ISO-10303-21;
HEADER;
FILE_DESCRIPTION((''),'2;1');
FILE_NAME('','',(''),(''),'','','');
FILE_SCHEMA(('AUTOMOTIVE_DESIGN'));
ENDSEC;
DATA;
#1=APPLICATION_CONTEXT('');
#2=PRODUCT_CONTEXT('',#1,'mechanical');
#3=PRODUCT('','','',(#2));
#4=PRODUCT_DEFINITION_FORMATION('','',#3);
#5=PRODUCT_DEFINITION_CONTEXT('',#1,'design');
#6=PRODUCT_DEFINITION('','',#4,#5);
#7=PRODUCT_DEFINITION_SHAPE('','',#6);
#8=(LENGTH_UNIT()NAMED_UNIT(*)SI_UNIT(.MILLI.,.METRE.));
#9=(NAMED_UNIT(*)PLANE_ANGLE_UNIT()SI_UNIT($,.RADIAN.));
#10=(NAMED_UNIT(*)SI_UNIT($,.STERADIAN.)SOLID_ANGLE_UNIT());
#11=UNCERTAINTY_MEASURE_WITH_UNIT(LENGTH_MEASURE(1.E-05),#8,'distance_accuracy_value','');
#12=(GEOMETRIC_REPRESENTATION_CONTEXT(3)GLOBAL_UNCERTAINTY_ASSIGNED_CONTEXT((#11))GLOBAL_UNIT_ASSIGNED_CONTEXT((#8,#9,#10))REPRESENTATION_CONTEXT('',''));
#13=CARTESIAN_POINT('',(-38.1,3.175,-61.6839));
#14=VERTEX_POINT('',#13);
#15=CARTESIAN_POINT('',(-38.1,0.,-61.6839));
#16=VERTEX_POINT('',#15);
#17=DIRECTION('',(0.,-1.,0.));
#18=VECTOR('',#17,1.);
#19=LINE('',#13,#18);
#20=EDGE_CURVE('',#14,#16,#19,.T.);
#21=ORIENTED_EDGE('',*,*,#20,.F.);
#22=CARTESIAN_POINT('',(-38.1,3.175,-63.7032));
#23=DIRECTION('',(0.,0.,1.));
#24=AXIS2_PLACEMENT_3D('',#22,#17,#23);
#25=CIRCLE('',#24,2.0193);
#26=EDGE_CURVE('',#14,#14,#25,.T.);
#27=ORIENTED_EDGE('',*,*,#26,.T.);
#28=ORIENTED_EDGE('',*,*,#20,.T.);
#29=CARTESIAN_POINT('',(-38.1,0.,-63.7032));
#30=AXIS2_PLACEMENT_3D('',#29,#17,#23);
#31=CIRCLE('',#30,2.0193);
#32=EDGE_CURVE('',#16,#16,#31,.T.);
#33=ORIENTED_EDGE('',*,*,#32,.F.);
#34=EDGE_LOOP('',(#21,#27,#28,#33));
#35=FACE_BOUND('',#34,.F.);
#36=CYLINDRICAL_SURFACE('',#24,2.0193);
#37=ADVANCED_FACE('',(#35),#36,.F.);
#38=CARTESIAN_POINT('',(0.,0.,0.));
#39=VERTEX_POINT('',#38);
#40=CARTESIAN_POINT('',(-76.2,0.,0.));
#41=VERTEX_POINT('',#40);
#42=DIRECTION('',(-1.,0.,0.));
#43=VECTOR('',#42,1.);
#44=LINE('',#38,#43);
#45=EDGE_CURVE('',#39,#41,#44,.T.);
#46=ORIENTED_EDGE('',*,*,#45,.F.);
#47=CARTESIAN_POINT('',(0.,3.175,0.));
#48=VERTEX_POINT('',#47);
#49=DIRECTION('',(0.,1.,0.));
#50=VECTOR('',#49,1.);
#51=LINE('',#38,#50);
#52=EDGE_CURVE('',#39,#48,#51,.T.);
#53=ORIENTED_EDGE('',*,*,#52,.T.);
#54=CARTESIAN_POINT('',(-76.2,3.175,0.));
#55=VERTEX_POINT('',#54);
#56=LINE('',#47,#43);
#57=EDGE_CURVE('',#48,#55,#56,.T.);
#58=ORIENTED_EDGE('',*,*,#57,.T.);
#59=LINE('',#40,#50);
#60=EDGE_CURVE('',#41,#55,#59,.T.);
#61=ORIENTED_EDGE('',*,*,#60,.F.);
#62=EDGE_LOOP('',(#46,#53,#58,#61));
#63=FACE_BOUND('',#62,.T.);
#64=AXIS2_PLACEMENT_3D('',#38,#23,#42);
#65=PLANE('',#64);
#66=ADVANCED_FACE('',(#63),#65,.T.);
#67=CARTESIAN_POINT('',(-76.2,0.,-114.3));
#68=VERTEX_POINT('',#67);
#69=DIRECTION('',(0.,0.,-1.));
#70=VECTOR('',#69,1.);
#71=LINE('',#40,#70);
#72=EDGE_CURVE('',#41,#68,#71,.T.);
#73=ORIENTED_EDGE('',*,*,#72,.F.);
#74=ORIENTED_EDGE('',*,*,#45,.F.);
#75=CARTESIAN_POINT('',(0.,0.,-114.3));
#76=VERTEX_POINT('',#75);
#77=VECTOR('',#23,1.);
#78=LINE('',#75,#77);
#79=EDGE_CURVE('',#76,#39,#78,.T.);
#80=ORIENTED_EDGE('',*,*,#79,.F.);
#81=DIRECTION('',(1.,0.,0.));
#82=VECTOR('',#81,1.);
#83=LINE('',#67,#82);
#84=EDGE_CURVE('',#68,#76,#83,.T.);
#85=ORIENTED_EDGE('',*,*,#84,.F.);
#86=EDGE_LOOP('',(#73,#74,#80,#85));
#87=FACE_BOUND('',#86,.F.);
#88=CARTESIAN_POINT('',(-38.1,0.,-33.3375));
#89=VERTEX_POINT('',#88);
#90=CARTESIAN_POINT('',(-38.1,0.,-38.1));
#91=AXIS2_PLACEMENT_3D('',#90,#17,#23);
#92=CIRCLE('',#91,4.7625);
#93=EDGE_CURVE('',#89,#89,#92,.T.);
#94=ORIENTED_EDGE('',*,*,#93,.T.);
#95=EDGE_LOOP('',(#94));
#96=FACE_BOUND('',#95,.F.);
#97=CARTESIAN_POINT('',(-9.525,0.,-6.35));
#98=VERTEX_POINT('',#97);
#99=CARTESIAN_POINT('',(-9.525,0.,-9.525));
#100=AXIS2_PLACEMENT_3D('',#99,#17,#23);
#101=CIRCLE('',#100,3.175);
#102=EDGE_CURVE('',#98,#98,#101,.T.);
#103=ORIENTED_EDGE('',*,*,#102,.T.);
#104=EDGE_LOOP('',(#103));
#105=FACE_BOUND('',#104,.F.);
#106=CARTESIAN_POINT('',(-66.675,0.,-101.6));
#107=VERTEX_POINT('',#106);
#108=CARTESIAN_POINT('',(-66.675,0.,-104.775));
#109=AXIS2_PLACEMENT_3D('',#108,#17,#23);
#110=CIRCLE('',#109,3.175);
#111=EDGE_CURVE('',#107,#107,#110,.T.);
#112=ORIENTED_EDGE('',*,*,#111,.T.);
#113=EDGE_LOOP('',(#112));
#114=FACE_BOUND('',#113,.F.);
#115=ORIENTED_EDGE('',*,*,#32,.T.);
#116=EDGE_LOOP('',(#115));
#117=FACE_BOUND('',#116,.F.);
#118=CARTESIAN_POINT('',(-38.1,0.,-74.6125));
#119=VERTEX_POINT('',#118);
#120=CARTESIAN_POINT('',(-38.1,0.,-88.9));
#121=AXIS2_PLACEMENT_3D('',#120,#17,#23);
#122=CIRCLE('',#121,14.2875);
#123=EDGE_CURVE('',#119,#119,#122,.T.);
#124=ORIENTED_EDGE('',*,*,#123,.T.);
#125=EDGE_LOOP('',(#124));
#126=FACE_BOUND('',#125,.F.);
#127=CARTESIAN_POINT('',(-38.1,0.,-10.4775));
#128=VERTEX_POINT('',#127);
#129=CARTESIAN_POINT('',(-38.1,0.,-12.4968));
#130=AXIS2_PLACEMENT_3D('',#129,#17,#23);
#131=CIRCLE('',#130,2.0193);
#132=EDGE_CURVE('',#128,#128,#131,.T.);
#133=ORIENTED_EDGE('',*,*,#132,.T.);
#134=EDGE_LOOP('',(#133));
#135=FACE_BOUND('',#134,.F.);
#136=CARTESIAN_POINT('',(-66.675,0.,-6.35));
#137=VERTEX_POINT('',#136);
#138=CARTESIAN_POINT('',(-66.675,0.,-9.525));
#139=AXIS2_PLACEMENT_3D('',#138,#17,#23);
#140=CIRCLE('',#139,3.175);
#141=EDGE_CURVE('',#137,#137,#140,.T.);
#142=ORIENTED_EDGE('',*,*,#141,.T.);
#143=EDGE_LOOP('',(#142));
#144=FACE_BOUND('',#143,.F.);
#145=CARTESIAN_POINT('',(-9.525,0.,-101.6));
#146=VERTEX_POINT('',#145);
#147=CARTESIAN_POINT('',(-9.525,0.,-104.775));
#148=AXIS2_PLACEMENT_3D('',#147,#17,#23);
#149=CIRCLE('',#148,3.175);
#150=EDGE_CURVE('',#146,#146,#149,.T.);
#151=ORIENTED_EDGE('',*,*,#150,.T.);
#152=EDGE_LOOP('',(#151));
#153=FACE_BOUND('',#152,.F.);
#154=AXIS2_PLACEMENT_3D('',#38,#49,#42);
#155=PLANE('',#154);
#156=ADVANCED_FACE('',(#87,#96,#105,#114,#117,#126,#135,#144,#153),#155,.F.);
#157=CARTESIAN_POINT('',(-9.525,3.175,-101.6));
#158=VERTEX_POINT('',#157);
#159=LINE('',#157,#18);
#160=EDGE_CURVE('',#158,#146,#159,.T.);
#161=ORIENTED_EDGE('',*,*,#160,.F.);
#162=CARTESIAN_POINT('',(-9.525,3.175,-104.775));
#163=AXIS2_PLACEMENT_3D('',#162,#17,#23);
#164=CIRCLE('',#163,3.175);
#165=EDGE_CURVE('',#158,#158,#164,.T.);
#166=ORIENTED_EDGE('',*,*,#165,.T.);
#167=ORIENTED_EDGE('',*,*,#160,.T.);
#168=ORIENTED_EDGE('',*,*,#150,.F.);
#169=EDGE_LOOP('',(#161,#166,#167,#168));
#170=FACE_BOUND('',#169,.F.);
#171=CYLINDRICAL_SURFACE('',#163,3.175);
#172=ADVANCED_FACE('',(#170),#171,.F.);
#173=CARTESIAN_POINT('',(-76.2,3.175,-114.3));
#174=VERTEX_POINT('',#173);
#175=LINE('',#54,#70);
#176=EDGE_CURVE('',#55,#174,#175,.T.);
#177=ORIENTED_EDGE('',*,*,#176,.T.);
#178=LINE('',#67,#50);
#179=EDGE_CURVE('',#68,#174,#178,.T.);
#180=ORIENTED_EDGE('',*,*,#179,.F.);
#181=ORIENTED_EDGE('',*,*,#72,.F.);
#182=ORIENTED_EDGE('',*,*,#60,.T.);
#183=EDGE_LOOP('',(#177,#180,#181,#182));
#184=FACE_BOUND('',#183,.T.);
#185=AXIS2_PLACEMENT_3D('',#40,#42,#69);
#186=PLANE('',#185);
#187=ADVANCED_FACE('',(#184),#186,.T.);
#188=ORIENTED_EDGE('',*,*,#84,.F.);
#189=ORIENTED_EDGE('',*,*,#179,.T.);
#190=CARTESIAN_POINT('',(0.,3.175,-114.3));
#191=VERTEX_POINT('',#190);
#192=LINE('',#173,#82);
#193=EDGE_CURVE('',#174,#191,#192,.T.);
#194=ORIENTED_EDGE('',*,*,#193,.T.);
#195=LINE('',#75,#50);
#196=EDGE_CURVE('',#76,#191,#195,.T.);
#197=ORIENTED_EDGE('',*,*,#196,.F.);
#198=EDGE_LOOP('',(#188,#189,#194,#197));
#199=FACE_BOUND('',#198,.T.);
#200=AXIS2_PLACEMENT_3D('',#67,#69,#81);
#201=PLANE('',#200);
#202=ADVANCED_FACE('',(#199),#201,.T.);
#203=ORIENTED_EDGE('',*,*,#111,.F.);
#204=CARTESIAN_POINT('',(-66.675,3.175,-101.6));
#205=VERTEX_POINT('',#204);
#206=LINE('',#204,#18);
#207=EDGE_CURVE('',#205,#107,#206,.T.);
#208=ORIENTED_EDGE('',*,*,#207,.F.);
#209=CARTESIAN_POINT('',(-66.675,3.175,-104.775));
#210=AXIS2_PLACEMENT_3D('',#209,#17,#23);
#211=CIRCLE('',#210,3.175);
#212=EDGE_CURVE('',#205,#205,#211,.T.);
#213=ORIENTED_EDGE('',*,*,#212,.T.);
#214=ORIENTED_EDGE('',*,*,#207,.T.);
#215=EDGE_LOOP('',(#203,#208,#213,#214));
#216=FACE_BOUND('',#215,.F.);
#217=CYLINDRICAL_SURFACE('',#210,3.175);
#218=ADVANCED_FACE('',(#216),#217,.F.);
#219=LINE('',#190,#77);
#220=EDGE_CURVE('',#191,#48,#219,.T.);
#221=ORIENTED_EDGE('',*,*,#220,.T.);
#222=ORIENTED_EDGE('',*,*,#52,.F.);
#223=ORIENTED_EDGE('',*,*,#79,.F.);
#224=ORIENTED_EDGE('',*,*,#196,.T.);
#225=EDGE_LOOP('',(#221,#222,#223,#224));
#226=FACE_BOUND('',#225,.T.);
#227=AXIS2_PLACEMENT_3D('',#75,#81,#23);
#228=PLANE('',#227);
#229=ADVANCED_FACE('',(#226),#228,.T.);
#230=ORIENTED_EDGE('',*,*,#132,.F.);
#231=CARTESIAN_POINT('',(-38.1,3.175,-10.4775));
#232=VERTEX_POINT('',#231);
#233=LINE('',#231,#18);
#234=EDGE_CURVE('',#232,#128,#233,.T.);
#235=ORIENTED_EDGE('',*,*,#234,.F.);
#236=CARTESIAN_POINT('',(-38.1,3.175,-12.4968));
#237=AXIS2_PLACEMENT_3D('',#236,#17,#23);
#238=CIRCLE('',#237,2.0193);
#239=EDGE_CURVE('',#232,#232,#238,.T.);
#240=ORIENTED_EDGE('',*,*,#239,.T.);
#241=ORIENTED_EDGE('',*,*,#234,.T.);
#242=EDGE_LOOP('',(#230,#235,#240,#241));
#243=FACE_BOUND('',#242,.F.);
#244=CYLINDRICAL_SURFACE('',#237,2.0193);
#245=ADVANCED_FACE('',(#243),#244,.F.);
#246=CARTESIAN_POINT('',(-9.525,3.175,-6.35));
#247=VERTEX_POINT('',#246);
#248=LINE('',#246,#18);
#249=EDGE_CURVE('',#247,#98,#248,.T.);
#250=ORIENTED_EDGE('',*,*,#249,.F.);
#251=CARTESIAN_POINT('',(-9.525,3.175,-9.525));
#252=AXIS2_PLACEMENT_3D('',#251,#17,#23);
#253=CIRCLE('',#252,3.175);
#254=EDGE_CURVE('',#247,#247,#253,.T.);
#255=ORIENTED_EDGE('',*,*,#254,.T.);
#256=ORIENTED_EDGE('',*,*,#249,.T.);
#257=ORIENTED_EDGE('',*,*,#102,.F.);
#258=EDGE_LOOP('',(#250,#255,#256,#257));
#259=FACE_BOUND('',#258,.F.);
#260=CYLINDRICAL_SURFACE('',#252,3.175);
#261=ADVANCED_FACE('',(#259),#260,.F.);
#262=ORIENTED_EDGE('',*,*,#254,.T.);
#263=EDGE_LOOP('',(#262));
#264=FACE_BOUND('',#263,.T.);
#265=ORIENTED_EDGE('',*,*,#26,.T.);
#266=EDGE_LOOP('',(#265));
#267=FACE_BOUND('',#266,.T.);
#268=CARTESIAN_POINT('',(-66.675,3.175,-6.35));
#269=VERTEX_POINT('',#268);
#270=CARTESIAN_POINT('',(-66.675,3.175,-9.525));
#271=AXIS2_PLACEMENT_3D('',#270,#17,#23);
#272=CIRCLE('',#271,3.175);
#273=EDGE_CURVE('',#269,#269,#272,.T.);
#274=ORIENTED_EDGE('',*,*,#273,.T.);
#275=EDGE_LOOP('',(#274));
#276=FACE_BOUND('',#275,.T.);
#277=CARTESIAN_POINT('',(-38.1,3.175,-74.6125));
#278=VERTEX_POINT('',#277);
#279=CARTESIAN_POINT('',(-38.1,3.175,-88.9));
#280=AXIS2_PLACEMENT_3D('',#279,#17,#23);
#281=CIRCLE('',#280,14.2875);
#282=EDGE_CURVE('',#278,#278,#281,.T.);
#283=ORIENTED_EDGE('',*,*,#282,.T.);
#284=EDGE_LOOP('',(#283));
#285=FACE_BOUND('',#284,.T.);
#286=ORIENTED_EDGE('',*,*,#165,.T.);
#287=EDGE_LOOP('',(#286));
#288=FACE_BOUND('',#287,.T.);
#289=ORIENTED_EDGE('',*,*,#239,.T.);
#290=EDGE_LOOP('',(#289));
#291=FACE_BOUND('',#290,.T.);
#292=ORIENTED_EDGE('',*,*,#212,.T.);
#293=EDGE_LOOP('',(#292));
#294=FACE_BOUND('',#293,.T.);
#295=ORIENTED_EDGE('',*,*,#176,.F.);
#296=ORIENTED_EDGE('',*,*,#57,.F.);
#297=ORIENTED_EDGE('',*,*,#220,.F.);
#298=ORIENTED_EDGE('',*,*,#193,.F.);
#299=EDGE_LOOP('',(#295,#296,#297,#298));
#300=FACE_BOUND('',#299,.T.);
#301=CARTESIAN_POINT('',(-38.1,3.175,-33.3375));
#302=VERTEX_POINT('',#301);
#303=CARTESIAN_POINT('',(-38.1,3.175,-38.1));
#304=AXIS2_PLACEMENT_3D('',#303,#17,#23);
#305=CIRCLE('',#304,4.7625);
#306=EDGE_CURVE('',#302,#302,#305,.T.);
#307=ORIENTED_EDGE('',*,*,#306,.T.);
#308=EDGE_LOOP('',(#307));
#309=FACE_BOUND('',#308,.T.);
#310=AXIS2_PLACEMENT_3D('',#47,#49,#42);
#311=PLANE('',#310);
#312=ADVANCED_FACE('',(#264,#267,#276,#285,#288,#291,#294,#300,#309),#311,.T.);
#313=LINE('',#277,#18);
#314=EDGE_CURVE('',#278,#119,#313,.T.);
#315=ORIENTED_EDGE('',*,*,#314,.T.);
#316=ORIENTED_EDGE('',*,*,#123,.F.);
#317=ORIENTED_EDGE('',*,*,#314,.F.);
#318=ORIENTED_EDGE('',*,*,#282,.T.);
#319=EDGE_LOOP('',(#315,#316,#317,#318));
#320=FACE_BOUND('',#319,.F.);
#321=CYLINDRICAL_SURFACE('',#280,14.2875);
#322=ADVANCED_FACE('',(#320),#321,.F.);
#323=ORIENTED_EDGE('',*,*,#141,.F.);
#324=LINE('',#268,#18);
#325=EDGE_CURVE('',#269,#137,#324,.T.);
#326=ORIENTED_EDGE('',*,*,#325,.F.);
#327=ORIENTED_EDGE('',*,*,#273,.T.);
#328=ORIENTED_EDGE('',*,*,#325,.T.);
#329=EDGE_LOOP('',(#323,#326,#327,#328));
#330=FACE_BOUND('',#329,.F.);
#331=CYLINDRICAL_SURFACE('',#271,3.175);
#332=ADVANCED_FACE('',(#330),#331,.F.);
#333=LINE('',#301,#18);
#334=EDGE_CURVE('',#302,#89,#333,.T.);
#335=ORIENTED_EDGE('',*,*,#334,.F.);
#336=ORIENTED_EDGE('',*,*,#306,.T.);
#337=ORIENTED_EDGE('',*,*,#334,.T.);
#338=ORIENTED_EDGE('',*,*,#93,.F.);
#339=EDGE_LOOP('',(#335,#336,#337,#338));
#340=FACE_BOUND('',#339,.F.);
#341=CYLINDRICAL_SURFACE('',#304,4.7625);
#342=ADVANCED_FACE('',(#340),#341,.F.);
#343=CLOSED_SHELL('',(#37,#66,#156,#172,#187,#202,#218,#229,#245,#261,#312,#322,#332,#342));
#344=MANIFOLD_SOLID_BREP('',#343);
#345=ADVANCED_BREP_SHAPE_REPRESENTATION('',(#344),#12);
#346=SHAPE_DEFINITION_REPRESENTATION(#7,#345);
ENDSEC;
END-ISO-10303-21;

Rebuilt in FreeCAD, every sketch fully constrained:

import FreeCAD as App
import Part
import Sketcher

V = App.Vector
Q = App.Units.Quantity


def add_polygon(sketch, points):
    """Adds a closed chain of lines whose ends are joined by coincident constraints."""
    first, n = sketch.GeometryCount, len(points)
    for a, b in zip(points, points[1:] + points[:1]):
        sketch.addGeometry(Part.LineSegment(App.Vector(*a, 0), App.Vector(*b, 0)), False)
    for i in range(n):
        sketch.addConstraint(Sketcher.Constraint("Coincident", first + i, 2, first + (i + 1) % n, 1))

doc = App.newDocument("Part")
body = doc.addObject("PartDesign::Body", "Body")

# Sketch on XZ plane
sketch1 = body.newObject("Sketcher::SketchObject", "Sketch")
sketch1.AttachmentSupport = (doc.getObject("XZ_Plane"), [""])
sketch1.MapMode = "FlatFace"
add_polygon(sketch1, [(-76.2, 0), (0, 0), (0, -114.3), (-76.2, -114.3)])  # lines 0-3
sketch1.addConstraint([
    Sketcher.Constraint("Horizontal", 0),
    Sketcher.Constraint("Vertical", 1),
    Sketcher.Constraint("Horizontal", 2),
    Sketcher.Constraint("Vertical", 3),
    Sketcher.Constraint("Coincident", 0, 2, -1, 1),
    Sketcher.Constraint("DistanceX", 0, 1, 0, 2, Q("3 in")),
    Sketcher.Constraint("DistanceY", 1, 2, 1, 1, Q("4.5 in")),
])
pad1 = body.newObject("PartDesign::Pad", "Pad")
pad1.Profile = sketch1
pad1.Length = Q("0.125 in")
pad1.Reversed = True

# Sketch on XZ plane
sketch2 = body.newObject("Sketcher::SketchObject", "Sketch001")
sketch2.AttachmentSupport = (doc.getObject("XZ_Plane"), [""])
sketch2.MapMode = "FlatFace"
sketch2.AttachmentOffset = App.Placement(V(0, 0, -0.125 * 25.4), App.Rotation())
sketch2.addGeometry(Part.Circle(V(-9.525, -9.525, 0), V(0, 0, 1), 3.175), False)
sketch2.addConstraint([
    Sketcher.Constraint("Diameter", 0, Q("0.25 in")),
    Sketcher.Constraint("DistanceX", 0, 3, -1, 1, Q("0.375 in")),
    Sketcher.Constraint("DistanceY", 0, 3, -1, 1, Q("0.375 in")),
])
doc.recompute()
hole = body.newObject("PartDesign::Hole", "Hole")
hole.Profile = sketch2
hole.ThreadType = "None"
hole.Diameter = Q("0.25 in")
hole.DepthType = "Dimension"
hole.Depth = Q("1 in")
hole.DrillPoint = "Angled"
hole.DrillPointAngle = 118
hole.Reversed = True

# Sketch on XZ plane
sketch3 = body.newObject("Sketcher::SketchObject", "Sketch002")
sketch3.AttachmentSupport = (doc.getObject("XZ_Plane"), [""])
sketch3.MapMode = "FlatFace"
sketch3.AttachmentOffset = App.Placement(V(0, 0, -0.125 * 25.4), App.Rotation())
sketch3.addGeometry(Part.Circle(V(-9.525, -104.775, 0), V(0, 0, 1), 3.175), False)
sketch3.addConstraint([
    Sketcher.Constraint("Diameter", 0, Q("0.25 in")),
    Sketcher.Constraint("DistanceX", 0, 3, -1, 1, Q("0.375 in")),
    Sketcher.Constraint("DistanceY", 0, 3, -1, 1, Q("4.125 in")),
])
doc.recompute()
hole2 = body.newObject("PartDesign::Hole", "Hole001")
hole2.Profile = sketch3
hole2.ThreadType = "None"
hole2.Diameter = Q("0.25 in")
hole2.DepthType = "Dimension"
hole2.Depth = Q("1 in")
hole2.DrillPoint = "Angled"
hole2.DrillPointAngle = 118
hole2.Reversed = True

# Sketch on XZ plane
sketch4 = body.newObject("Sketcher::SketchObject", "Sketch003")
sketch4.AttachmentSupport = (doc.getObject("XZ_Plane"), [""])
sketch4.MapMode = "FlatFace"
sketch4.AttachmentOffset = App.Placement(V(0, 0, -0.125 * 25.4), App.Rotation())
sketch4.addGeometry(Part.Circle(V(-66.675, -104.775, 0), V(0, 0, 1), 3.175), False)
sketch4.addConstraint([
    Sketcher.Constraint("Diameter", 0, Q("0.25 in")),
    Sketcher.Constraint("DistanceX", 0, 3, -1, 1, Q("2.625 in")),
    Sketcher.Constraint("DistanceY", 0, 3, -1, 1, Q("4.125 in")),
])
doc.recompute()
hole3 = body.newObject("PartDesign::Hole", "Hole002")
hole3.Profile = sketch4
hole3.ThreadType = "None"
hole3.Diameter = Q("0.25 in")
hole3.DepthType = "Dimension"
hole3.Depth = Q("1 in")
hole3.DrillPoint = "Angled"
hole3.DrillPointAngle = 118
hole3.Reversed = True

# Sketch on XZ plane
sketch5 = body.newObject("Sketcher::SketchObject", "Sketch004")
sketch5.AttachmentSupport = (doc.getObject("XZ_Plane"), [""])
sketch5.MapMode = "FlatFace"
sketch5.AttachmentOffset = App.Placement(V(0, 0, -0.125 * 25.4), App.Rotation())
sketch5.addGeometry(Part.Circle(V(-66.675, -9.525, 0), V(0, 0, 1), 3.175), False)
sketch5.addConstraint([
    Sketcher.Constraint("Diameter", 0, Q("0.25 in")),
    Sketcher.Constraint("DistanceX", 0, 3, -1, 1, Q("2.625 in")),
    Sketcher.Constraint("DistanceY", 0, 3, -1, 1, Q("0.375 in")),
])
doc.recompute()
hole4 = body.newObject("PartDesign::Hole", "Hole003")
hole4.Profile = sketch5
hole4.ThreadType = "None"
hole4.Diameter = Q("0.25 in")
hole4.DepthType = "Dimension"
hole4.Depth = Q("1 in")
hole4.DrillPoint = "Angled"
hole4.DrillPointAngle = 118
hole4.Reversed = True

# Sketch on XZ plane
sketch6 = body.newObject("Sketcher::SketchObject", "Sketch005")
sketch6.AttachmentSupport = (doc.getObject("XZ_Plane"), [""])
sketch6.MapMode = "FlatFace"
sketch6.AttachmentOffset = App.Placement(V(0, 0, -0.125 * 25.4), App.Rotation())
sketch6.addGeometry(Part.Circle(V(-38.1, -88.9, 0), V(0, 0, 1), 14.2875), False)
sketch6.addConstraint([
    Sketcher.Constraint("Diameter", 0, Q("1.125 in")),
    Sketcher.Constraint("DistanceX", 0, 3, -1, 1, Q("1.5 in")),
    Sketcher.Constraint("DistanceY", 0, 3, -1, 1, Q("3.5 in")),
])
doc.recompute()
hole5 = body.newObject("PartDesign::Hole", "Hole004")
hole5.Profile = sketch6
hole5.ThreadType = "None"
hole5.Diameter = Q("1.125 in")
hole5.DepthType = "Dimension"
hole5.Depth = Q("1 in")
hole5.DrillPoint = "Angled"
hole5.DrillPointAngle = 118
hole5.Reversed = True

# Sketch on XZ plane
sketch7 = body.newObject("Sketcher::SketchObject", "Sketch006")
sketch7.AttachmentSupport = (doc.getObject("XZ_Plane"), [""])
sketch7.MapMode = "FlatFace"
sketch7.AttachmentOffset = App.Placement(V(0, 0, -0.125 * 25.4), App.Rotation())
sketch7.addGeometry(Part.Circle(V(-38.1, -38.1, 0), V(0, 0, 1), 4.7625), False)
sketch7.addConstraint([
    Sketcher.Constraint("Diameter", 0, Q("0.375 in")),
    Sketcher.Constraint("DistanceX", 0, 3, -1, 1, Q("1.5 in")),
    Sketcher.Constraint("DistanceY", 0, 3, -1, 1, Q("1.5 in")),
])
doc.recompute()
hole6 = body.newObject("PartDesign::Hole", "Hole005")
hole6.Profile = sketch7
hole6.ThreadType = "None"
hole6.Diameter = Q("0.375 in")
hole6.DepthType = "Dimension"
hole6.Depth = Q("1 in")
hole6.DrillPoint = "Angled"
hole6.DrillPointAngle = 118
hole6.Reversed = True

# Sketch on XZ plane
sketch8 = body.newObject("Sketcher::SketchObject", "Sketch007")
sketch8.AttachmentSupport = (doc.getObject("XZ_Plane"), [""])
sketch8.MapMode = "FlatFace"
sketch8.AttachmentOffset = App.Placement(V(0, 0, -0.125 * 25.4), App.Rotation())
sketch8.addGeometry(Part.Circle(V(-38.1, -12.4968, 0), V(0, 0, 1), 2.0193), False)
sketch8.addConstraint([
    Sketcher.Constraint("Diameter", 0, Q("0.159 in")),
    Sketcher.Constraint("DistanceX", 0, 3, -1, 1, Q("1.5 in")),
    Sketcher.Constraint("DistanceY", 0, 3, -1, 1, Q("0.492 in")),
])
doc.recompute()
hole7 = body.newObject("PartDesign::Hole", "Hole006")
hole7.Profile = sketch8
hole7.ThreadType = "None"
hole7.Diameter = Q("0.159 in")
hole7.DepthType = "Dimension"
hole7.Depth = Q("1 in")
hole7.DrillPoint = "Angled"
hole7.DrillPointAngle = 118
hole7.Reversed = True

# Sketch on XZ plane
sketch9 = body.newObject("Sketcher::SketchObject", "Sketch008")
sketch9.AttachmentSupport = (doc.getObject("XZ_Plane"), [""])
sketch9.MapMode = "FlatFace"
sketch9.AttachmentOffset = App.Placement(V(0, 0, -0.125 * 25.4), App.Rotation())
sketch9.addGeometry(Part.Circle(V(-38.1, -63.7032, 0), V(0, 0, 1), 2.0193), False)
sketch9.addConstraint([
    Sketcher.Constraint("Diameter", 0, Q("0.159 in")),
    Sketcher.Constraint("DistanceX", 0, 3, -1, 1, Q("1.5 in")),
    Sketcher.Constraint("DistanceY", 0, 3, -1, 1, Q("2.508 in")),
])
doc.recompute()
hole8 = body.newObject("PartDesign::Hole", "Hole007")
hole8.Profile = sketch9
hole8.ThreadType = "None"
hole8.Diameter = Q("0.159 in")
hole8.DepthType = "Dimension"
hole8.Depth = Q("1 in")
hole8.DrillPoint = "Angled"
hole8.DrillPointAngle = 118
hole8.Reversed = True

doc.recompute()
